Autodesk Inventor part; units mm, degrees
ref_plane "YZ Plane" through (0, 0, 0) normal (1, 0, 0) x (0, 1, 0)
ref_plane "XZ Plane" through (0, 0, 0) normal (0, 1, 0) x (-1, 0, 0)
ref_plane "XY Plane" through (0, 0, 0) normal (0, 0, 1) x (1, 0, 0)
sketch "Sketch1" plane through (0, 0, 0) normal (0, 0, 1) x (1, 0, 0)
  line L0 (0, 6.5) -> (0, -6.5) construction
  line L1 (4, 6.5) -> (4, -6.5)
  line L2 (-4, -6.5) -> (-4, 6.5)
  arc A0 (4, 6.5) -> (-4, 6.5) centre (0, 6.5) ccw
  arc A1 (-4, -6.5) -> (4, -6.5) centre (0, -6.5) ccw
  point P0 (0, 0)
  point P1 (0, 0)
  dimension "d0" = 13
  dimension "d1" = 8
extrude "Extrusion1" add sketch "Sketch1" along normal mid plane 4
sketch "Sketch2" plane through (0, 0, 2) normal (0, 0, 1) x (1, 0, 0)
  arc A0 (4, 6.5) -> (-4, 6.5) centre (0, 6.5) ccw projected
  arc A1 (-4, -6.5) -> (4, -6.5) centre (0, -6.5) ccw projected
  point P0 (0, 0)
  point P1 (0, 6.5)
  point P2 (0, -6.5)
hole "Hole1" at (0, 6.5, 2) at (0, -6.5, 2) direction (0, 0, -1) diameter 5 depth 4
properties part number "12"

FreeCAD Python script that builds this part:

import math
import FreeCAD as App
import Part
import Sketcher
from FreeCAD import Vector
Q = App.Units.Quantity

doc = App.newDocument("Part")
body = doc.addObject("PartDesign::Body", "Body")

sketch1 = body.newObject("Sketcher::SketchObject", "Sketch")
sketch1.AttachmentSupport = (doc.getObject("XY_Plane"), [""])
sketch1.MapMode = "FlatFace"
sketch1.addGeometry([
    Part.LineSegment(Vector(4, -6.5, 0), Vector(4, 6.5, 0)),
    Part.ArcOfCircle(Part.Circle(Vector(0, 6.5, 0), Vector(0, 0, 1), 4), math.radians(0), math.radians(180)),
    Part.LineSegment(Vector(-4, 6.5, 0), Vector(-4, -6.5, 0)),
    Part.ArcOfCircle(Part.Circle(Vector(0, -6.5, 0), Vector(0, 0, 1), 4), math.radians(180), math.radians(360)),
], False)
sketch1.addConstraint([
    Sketcher.Constraint("Tangent", 0, 2, 1, 1),
    Sketcher.Constraint("Tangent", 1, 2, 2, 1),
    Sketcher.Constraint("Tangent", 2, 2, 3, 1),
    Sketcher.Constraint("Tangent", 3, 2, 0, 1),
    Sketcher.Constraint("Vertical", 0),
    Sketcher.Constraint("Vertical", 2),
    Sketcher.Constraint("Symmetric", 1, 3, 3, 3, -1, 1),
    Sketcher.Constraint("Radius", 1, Q("4 mm")),
    Sketcher.Constraint("DistanceY", 0, 1, 0, 2, Q("13 mm")),
])
pad1 = body.newObject("PartDesign::Pad", "Pad")
pad1.Profile = sketch1
pad1.Length = 4
pad1.Midplane = True

sketch2 = body.newObject("Sketcher::SketchObject", "Sketch001")
sketch2.AttachmentSupport = (doc.getObject("XY_Plane"), [""])
sketch2.MapMode = "FlatFace"
sketch2.AttachmentOffset = App.Placement(Vector(0, 0, 2), App.Rotation())
sketch2.addGeometry([
    Part.Circle(Vector(0, 6.5, 0), Vector(0, 0, 1), 2.5),
    Part.Circle(Vector(0, -6.5, 0), Vector(0, 0, 1), 2.5),
], False)
sketch2.addConstraint([
    Sketcher.Constraint("Equal", 0, 1),
    Sketcher.Constraint("Symmetric", 0, 3, 1, 3, -1, 1),
    Sketcher.Constraint("PointOnObject", 0, 3, -2),
    Sketcher.Constraint("Diameter", 0, Q("5 mm")),
    Sketcher.Constraint("DistanceY", 1, 3, 0, 3, Q("13 mm")),
])
doc.recompute()
hole = body.newObject("PartDesign::Hole", "Hole")
hole.Profile = sketch2
hole.ThreadType = "None"
hole.Diameter = 5
hole.DepthType = "Dimension"
hole.Depth = 4
hole.DrillPoint = "Flat"

doc.recompute()
